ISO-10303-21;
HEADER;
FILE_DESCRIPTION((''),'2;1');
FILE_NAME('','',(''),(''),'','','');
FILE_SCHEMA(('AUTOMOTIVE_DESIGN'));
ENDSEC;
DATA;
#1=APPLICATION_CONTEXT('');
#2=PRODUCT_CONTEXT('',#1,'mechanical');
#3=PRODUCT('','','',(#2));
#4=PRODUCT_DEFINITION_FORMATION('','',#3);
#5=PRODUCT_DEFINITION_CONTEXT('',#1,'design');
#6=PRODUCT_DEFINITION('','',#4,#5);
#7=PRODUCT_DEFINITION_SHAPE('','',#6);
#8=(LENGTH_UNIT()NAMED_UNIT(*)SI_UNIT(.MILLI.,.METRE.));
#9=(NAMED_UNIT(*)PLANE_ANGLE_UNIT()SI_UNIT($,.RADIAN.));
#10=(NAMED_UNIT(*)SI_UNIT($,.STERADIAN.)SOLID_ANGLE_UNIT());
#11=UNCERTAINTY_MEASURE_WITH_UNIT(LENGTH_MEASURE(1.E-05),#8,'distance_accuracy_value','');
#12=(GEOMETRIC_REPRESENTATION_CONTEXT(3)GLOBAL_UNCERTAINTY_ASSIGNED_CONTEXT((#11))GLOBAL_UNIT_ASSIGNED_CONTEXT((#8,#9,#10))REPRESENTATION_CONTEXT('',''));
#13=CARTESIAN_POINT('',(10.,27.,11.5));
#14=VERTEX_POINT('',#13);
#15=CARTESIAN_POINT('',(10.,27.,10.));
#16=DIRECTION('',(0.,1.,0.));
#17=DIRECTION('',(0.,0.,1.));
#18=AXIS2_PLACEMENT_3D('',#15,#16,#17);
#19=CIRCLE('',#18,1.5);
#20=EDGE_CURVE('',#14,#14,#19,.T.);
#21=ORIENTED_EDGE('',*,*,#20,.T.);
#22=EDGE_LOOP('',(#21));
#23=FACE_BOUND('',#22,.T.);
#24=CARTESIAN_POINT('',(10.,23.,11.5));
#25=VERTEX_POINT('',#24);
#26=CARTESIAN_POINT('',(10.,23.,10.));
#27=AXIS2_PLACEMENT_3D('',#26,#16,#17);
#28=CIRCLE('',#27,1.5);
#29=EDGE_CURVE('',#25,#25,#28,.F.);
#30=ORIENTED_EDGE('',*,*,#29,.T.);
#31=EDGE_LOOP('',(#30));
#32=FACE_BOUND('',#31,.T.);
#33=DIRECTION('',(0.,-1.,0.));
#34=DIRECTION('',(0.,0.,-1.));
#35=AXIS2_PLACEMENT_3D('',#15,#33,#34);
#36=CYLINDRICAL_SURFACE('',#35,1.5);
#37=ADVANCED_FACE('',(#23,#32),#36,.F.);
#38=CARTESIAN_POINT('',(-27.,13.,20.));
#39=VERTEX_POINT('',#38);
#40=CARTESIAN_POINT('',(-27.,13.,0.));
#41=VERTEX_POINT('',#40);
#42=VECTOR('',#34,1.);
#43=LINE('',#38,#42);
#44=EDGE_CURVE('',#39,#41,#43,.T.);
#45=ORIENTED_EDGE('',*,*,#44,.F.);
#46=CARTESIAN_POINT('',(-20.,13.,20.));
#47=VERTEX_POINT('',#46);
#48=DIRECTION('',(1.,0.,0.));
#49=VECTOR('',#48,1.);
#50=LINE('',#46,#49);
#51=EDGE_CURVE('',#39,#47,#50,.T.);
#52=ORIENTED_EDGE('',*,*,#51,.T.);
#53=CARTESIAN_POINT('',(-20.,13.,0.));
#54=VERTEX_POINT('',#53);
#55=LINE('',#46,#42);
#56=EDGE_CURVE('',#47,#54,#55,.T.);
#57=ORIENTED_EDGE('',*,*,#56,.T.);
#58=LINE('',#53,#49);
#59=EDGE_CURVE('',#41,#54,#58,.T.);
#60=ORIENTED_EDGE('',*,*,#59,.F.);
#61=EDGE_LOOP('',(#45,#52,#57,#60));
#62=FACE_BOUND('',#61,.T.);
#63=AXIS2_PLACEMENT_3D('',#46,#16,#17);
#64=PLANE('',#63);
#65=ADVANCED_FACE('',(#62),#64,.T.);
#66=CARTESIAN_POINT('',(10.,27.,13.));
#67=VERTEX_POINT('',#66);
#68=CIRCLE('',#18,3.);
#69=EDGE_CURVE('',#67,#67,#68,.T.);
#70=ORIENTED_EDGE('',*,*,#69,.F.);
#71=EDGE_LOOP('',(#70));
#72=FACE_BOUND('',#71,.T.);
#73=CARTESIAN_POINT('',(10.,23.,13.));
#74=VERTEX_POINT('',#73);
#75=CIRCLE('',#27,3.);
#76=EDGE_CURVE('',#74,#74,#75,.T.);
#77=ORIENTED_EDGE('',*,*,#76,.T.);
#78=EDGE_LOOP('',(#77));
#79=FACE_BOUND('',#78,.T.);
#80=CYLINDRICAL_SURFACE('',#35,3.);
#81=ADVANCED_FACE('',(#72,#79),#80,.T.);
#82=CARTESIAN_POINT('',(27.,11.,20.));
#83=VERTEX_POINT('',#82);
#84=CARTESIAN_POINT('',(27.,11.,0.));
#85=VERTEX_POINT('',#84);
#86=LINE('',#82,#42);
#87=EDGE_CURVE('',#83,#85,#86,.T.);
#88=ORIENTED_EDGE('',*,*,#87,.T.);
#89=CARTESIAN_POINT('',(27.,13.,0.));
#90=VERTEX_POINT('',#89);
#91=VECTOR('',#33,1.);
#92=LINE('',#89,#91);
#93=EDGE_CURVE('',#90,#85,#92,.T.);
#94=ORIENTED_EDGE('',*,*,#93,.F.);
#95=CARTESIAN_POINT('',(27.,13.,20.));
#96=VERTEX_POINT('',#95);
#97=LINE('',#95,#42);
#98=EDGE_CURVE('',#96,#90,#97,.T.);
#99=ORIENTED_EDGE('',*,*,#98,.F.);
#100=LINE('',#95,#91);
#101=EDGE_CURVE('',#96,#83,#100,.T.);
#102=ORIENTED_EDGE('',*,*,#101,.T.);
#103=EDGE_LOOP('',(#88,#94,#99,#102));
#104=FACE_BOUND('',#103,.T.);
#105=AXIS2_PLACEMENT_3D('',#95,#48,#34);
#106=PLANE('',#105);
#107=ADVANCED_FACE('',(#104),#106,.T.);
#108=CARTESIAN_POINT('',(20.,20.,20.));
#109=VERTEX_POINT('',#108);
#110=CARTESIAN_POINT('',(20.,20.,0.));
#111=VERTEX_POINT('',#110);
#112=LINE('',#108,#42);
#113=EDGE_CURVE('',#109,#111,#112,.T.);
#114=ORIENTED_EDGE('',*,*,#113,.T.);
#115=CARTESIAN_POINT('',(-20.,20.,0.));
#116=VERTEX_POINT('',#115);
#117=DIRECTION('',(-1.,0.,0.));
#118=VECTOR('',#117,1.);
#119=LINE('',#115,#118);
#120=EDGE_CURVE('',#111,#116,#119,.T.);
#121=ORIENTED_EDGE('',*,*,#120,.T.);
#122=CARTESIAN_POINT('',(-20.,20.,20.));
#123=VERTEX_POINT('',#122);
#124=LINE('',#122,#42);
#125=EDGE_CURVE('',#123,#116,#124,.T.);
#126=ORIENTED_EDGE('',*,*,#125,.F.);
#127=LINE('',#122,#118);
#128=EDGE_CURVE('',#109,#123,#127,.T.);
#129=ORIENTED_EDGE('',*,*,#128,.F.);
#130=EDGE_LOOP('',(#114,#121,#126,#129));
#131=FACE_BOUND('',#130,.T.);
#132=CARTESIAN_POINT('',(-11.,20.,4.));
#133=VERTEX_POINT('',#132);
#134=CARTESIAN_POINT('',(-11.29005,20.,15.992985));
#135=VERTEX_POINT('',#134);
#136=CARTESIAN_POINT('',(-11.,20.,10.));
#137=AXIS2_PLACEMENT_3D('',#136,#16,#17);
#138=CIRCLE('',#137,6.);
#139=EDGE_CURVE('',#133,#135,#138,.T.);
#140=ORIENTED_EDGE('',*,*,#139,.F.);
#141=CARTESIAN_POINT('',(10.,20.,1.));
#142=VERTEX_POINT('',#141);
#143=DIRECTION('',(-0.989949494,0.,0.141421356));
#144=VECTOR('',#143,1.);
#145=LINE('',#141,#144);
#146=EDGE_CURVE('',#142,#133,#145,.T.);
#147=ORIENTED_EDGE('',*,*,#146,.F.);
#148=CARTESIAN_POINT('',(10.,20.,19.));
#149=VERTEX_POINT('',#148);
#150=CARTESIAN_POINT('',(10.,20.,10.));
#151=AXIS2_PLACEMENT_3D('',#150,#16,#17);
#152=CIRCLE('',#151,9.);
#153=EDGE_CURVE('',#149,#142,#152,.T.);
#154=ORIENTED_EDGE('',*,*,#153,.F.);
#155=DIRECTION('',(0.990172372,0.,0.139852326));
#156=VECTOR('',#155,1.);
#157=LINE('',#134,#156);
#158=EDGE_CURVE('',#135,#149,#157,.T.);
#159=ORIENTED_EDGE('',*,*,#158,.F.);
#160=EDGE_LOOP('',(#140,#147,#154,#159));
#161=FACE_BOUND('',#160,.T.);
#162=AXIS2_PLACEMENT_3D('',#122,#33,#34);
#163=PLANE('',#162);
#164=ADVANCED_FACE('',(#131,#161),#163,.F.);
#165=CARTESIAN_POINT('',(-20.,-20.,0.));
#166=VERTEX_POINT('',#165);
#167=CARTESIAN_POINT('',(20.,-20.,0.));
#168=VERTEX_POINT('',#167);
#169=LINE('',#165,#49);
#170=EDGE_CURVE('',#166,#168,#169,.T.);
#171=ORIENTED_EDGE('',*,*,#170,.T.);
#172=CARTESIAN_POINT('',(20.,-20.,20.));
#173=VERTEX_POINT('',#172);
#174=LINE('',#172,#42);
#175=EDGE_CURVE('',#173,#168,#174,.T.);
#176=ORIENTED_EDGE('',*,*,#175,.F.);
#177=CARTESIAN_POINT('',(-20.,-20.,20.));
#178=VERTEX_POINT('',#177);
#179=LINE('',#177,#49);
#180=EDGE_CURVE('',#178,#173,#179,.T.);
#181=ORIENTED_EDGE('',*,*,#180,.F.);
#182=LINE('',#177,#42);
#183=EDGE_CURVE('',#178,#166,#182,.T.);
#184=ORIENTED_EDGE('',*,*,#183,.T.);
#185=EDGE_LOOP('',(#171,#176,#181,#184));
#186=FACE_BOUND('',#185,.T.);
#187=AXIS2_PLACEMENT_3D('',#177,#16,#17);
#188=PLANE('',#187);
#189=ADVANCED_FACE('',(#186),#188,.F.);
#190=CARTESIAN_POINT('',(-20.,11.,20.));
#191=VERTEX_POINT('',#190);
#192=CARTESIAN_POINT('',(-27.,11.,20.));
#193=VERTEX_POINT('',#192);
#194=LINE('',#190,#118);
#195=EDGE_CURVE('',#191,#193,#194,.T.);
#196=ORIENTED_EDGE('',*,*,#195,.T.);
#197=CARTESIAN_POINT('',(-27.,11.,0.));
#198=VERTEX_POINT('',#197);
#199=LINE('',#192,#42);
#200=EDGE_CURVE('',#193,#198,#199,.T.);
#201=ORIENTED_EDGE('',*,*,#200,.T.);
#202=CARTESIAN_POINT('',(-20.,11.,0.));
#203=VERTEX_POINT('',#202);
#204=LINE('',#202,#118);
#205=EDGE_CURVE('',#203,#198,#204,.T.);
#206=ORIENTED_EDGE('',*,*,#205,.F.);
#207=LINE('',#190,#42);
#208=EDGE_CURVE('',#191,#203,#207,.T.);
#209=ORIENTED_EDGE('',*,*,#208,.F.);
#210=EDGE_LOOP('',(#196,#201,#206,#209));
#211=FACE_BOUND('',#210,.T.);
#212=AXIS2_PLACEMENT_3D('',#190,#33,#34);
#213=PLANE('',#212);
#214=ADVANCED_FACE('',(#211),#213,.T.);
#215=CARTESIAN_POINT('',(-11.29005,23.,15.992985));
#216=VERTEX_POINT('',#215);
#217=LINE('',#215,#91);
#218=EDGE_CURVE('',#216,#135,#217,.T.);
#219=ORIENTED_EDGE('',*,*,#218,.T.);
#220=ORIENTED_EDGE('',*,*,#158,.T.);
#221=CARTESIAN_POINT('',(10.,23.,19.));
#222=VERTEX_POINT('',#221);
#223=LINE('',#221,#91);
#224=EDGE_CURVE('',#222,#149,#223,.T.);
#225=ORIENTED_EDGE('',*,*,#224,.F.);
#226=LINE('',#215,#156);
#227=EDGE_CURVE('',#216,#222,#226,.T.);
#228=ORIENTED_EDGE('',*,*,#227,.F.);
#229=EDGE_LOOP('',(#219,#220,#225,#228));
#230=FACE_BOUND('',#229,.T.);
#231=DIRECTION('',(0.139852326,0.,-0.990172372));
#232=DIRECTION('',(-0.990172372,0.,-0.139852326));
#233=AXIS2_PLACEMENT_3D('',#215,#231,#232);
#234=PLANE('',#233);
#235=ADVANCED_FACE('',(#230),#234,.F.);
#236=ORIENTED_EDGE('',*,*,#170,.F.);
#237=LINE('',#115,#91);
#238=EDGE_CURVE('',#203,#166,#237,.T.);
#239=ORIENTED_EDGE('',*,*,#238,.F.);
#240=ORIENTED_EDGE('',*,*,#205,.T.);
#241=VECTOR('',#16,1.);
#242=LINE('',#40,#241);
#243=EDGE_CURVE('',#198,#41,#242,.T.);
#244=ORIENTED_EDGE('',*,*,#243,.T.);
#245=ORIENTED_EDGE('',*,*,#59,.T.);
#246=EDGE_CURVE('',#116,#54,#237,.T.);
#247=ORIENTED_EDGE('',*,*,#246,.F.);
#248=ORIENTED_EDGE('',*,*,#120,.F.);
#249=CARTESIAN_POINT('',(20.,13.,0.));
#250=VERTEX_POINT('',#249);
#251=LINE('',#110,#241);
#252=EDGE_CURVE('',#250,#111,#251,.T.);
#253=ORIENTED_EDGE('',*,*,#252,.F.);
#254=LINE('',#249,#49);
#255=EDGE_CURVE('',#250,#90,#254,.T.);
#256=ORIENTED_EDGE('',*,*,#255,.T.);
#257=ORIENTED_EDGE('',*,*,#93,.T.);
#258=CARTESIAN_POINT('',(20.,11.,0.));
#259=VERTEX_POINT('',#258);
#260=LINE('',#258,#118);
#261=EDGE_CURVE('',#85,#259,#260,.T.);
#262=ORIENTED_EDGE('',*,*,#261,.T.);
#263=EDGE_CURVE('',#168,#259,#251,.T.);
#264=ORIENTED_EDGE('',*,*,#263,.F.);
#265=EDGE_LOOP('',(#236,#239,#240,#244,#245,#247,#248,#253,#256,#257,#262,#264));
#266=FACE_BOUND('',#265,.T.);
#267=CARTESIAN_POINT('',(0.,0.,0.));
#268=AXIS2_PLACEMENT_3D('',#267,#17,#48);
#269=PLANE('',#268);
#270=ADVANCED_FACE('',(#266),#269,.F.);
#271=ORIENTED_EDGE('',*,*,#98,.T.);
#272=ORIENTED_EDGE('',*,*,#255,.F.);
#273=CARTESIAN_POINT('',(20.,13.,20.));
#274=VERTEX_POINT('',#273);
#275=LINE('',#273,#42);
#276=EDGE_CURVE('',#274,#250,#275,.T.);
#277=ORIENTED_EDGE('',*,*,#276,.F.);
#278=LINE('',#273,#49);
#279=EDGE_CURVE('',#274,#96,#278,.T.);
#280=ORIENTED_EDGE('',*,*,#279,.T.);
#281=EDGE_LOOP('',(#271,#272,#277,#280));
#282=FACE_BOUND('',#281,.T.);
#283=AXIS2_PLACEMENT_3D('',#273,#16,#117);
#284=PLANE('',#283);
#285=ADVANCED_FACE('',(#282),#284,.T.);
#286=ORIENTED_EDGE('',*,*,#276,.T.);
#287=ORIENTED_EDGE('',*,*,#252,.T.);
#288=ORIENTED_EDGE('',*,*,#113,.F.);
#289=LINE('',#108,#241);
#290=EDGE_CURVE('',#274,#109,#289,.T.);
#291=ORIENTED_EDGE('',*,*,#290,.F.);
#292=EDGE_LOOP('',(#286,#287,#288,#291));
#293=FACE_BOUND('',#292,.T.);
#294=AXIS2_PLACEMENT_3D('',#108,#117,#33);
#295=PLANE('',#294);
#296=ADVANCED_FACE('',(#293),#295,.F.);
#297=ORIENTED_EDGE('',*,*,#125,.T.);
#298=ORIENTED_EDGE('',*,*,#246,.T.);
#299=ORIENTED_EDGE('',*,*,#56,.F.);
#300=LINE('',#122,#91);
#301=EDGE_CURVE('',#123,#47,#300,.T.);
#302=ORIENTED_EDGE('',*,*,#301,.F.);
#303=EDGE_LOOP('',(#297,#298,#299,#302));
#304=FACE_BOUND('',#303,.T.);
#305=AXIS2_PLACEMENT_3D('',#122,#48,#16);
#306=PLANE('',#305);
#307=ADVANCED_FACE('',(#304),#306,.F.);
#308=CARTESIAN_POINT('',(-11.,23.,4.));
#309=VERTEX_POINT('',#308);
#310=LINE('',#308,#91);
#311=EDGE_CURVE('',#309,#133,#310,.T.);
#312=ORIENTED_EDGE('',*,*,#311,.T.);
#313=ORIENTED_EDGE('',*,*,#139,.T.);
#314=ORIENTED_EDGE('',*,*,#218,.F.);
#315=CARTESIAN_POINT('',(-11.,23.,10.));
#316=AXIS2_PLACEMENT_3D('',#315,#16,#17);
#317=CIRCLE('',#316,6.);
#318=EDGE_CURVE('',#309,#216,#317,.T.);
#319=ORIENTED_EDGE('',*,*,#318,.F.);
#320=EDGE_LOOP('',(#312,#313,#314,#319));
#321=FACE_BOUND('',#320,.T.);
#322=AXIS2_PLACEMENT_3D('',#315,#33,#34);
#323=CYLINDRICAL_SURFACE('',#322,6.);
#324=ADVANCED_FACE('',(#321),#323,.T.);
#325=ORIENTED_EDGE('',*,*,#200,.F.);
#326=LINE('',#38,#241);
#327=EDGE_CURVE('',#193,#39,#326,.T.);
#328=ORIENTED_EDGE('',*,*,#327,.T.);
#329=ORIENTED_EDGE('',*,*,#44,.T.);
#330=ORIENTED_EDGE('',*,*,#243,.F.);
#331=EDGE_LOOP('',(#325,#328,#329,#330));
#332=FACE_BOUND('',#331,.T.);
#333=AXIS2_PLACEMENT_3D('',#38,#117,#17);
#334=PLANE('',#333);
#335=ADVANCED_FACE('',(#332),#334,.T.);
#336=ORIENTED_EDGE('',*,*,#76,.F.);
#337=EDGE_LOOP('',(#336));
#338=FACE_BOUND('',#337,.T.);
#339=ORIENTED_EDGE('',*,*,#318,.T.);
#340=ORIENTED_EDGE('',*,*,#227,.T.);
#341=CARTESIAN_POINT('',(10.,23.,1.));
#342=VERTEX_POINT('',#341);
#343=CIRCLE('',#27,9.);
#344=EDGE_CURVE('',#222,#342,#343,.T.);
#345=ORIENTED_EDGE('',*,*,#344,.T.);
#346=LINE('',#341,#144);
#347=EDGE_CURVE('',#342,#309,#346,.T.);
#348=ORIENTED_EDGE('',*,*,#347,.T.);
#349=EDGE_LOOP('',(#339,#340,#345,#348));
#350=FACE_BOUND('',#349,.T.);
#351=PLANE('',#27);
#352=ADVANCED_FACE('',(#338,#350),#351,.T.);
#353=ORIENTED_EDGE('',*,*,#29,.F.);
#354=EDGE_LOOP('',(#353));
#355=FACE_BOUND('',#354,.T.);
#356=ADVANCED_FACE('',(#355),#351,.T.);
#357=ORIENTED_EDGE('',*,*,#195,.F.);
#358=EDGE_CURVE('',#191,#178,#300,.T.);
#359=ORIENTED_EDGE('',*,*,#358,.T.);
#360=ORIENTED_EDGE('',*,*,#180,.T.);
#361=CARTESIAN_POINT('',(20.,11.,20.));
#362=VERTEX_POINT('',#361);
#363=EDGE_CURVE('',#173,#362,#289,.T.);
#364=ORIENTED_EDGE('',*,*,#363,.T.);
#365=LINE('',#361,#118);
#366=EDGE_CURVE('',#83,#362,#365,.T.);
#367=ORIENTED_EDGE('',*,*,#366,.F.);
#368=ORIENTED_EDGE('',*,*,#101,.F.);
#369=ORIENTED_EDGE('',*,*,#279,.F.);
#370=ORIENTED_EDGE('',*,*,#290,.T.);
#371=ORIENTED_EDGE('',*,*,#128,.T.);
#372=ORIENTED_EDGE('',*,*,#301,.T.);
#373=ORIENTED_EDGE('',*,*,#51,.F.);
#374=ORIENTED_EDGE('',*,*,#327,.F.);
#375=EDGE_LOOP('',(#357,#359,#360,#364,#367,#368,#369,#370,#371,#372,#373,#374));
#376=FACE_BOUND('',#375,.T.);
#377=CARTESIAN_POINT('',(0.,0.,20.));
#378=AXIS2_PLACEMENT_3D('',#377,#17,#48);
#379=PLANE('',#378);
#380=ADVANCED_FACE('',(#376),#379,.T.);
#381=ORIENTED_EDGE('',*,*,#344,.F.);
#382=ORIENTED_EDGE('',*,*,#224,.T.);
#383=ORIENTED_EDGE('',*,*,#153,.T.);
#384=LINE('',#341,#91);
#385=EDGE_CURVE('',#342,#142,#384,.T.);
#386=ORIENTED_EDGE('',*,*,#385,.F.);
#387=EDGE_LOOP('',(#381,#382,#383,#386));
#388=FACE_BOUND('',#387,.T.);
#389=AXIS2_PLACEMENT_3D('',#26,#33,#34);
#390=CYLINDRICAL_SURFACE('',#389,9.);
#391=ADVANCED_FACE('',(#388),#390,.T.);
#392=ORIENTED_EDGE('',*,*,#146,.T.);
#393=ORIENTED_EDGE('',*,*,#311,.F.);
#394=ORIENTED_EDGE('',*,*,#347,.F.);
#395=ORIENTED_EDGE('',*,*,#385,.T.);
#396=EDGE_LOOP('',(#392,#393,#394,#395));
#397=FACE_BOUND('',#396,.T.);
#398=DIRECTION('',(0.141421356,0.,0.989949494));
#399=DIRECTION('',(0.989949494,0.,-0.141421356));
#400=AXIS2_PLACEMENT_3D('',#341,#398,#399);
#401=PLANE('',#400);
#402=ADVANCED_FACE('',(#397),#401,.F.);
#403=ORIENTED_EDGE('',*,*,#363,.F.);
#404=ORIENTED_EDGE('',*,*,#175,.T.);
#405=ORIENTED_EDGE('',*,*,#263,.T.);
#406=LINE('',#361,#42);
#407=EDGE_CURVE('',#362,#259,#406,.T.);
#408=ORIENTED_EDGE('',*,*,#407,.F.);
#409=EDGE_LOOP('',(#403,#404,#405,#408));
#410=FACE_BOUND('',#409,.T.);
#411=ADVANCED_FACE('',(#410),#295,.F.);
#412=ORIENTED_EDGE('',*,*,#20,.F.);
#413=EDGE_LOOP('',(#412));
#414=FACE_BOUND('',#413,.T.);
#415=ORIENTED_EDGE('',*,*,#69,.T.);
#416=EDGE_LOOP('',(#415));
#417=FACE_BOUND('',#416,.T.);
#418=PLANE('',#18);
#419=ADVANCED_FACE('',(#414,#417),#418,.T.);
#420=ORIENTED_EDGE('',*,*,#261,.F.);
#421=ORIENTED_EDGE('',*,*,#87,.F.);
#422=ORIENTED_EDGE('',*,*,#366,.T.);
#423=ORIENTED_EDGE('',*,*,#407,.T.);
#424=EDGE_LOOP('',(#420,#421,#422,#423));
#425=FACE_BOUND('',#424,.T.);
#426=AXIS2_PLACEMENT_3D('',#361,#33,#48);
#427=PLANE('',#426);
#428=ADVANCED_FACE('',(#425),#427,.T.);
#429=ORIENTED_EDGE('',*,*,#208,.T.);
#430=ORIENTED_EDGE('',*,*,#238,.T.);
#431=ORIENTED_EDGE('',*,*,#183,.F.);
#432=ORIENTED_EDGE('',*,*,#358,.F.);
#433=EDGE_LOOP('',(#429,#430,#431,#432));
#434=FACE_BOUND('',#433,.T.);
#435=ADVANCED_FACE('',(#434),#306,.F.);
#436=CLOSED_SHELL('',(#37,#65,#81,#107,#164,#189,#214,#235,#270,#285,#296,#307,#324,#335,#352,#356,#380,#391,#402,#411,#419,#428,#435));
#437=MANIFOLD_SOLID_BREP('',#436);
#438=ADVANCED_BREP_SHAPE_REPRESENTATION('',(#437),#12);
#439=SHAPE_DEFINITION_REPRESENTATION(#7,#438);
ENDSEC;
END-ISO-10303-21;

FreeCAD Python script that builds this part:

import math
import FreeCAD as App
import Part
import Sketcher
Q = App.Units.Quantity


def add_polygon(sketch, points):
    """Adds a closed chain of lines whose ends are joined by coincident constraints."""
    first, n = sketch.GeometryCount, len(points)
    for a, b in zip(points, points[1:] + points[:1]):
        sketch.addGeometry(Part.LineSegment(App.Vector(*a, 0), App.Vector(*b, 0)), False)
    for i in range(n):
        sketch.addConstraint(Sketcher.Constraint("Coincident", first + i, 2, first + (i + 1) % n, 1))

doc = App.newDocument("Part")
body = doc.addObject("PartDesign::Body", "Body")

sketch1 = body.newObject("Sketcher::SketchObject", "Sketch")
sketch1.AttachmentSupport = (doc.getObject("XY_Plane"), [""])
sketch1.MapMode = "FlatFace"
add_polygon(sketch1, [(-20, 20), (-20, -20), (20, -20), (20, 20)])
sketch1.addConstraint([
    Sketcher.Constraint("Vertical", 0),
    Sketcher.Constraint("Horizontal", 1),
    Sketcher.Constraint("Vertical", 2),
    Sketcher.Constraint("Horizontal", 3),
    Sketcher.Constraint("Symmetric", 0, 2, 2, 2, -1, 1),
    Sketcher.Constraint("Equal", 3, 0),
    Sketcher.Constraint("DistanceX", 1, 1, 1, 2, Q("40 mm")),
])
pad1 = body.newObject("PartDesign::Pad", "Pad")
pad1.Profile = sketch1
pad1.Length = 20

sketch2 = body.newObject("Sketcher::SketchObject", "Sketch001")
sketch2.AttachmentSupport = (doc.getObject("XZ_Plane"), [""])
sketch2.MapMode = "FlatFace"
sketch2.AttachmentOffset = App.Placement(App.Vector(0, 0, -20), App.Rotation())
sketch2.addGeometry([
    Part.LineSegment(App.Vector(10, 1, 0), App.Vector(-11, 4, 0)),
    Part.ArcOfCircle(Part.Circle(App.Vector(-11, 10, 0), App.Vector(0, 0, 1), 6), math.radians(93), math.radians(270)),
    Part.LineSegment(App.Vector(-11, 16, 0), App.Vector(10, 19, 0)),
    Part.ArcOfCircle(Part.Circle(App.Vector(10, 10, 0), App.Vector(0, 0, 1), 9), math.radians(-90), math.radians(90)),
], False)
sketch2.addConstraint([
    Sketcher.Constraint("Coincident", 0, 2, 1, 2),
    Sketcher.Constraint("Coincident", 1, 1, 2, 1),
    Sketcher.Constraint("Coincident", 2, 2, 3, 2),
    Sketcher.Constraint("Coincident", 3, 1, 0, 1),
    Sketcher.Constraint("Horizontal", 1, 3, 3, 3),
    Sketcher.Constraint("Vertical", 1, 3, 0, 2),
    Sketcher.Constraint("Vertical", 3, 3, 2, 2),
    Sketcher.Constraint("Vertical", 2, 2, 3, 1),
    Sketcher.Constraint("Radius", 1, Q("6 mm")),
    Sketcher.Constraint("Radius", 3, Q("9 mm")),
    Sketcher.Constraint("DistanceX", 1, 3, -1, 1, Q("11 mm")),
    Sketcher.Constraint("DistanceY", -1, 1, 1, 3, Q("10 mm")),
    Sketcher.Constraint("DistanceX", -1, 1, 3, 3, Q("10 mm")),
    Sketcher.Constraint("DistanceX", 1, 1, -1, 1, Q("11.29005 mm")),
])
pad2 = body.newObject("PartDesign::Pad", "Pad001")
pad2.Profile = sketch2
pad2.Length = 3
pad2.Reversed = True

sketch3 = body.newObject("Sketcher::SketchObject", "Sketch002")
sketch3.AttachmentSupport = (doc.getObject("XZ_Plane"), [""])
sketch3.MapMode = "FlatFace"
sketch3.AttachmentOffset = App.Placement(App.Vector(0, 0, -23), App.Rotation())
sketch3.addGeometry([
    Part.Circle(App.Vector(10, 10, 0), App.Vector(0, 0, 1), 3),
    Part.Circle(App.Vector(10, 10, 0), App.Vector(0, 0, 1), 1.5),
], False)
sketch3.addConstraint([
    Sketcher.Constraint("Coincident", 1, 3, 0, 3),
    Sketcher.Constraint("Diameter", 0, Q("6 mm")),
    Sketcher.Constraint("Diameter", 1, Q("3 mm")),
    Sketcher.Constraint("DistanceX", -1, 1, 0, 3, Q("10 mm")),
    Sketcher.Constraint("DistanceY", -1, 1, 0, 3, Q("10 mm")),
])
pad3 = body.newObject("PartDesign::Pad", "Pad002")
pad3.Profile = sketch3
pad3.Length = 4
pad3.Reversed = True

sketch4 = body.newObject("Sketcher::SketchObject", "Sketch003")
sketch4.AttachmentSupport = (doc.getObject("XY_Plane"), [""])
sketch4.MapMode = "FlatFace"
add_polygon(sketch4, [(27, 13), (27, 11), (20, 11), (20, 13)])
add_polygon(sketch4, [(-20, 13), (-20, 11), (-27, 11), (-27, 13)])
sketch4.addConstraint([
    Sketcher.Constraint("Vertical", 0),
    Sketcher.Constraint("Horizontal", 1),
    Sketcher.Constraint("Vertical", 2),
    Sketcher.Constraint("Horizontal", 3),
    Sketcher.Constraint("Vertical", 4),
    Sketcher.Constraint("Horizontal", 5),
    Sketcher.Constraint("Vertical", 6),
    Sketcher.Constraint("Horizontal", 7),
    Sketcher.Constraint("Symmetric", 1, 2, 4, 2, -2),
    Sketcher.Constraint("Symmetric", 3, 2, 6, 2, -2),
    Sketcher.Constraint("DistanceX", 1, 2, 1, 1, Q("7 mm")),
    Sketcher.Constraint("DistanceY", 0, 2, 0, 1, Q("2 mm")),
    Sketcher.Constraint("DistanceX", -1, 1, 0, 2, Q("27 mm")),
    Sketcher.Constraint("DistanceY", -1, 1, 0, 2, Q("11 mm")),
])
pad4 = body.newObject("PartDesign::Pad", "Pad003")
pad4.Profile = sketch4
pad4.Length = 20

doc.recompute()
